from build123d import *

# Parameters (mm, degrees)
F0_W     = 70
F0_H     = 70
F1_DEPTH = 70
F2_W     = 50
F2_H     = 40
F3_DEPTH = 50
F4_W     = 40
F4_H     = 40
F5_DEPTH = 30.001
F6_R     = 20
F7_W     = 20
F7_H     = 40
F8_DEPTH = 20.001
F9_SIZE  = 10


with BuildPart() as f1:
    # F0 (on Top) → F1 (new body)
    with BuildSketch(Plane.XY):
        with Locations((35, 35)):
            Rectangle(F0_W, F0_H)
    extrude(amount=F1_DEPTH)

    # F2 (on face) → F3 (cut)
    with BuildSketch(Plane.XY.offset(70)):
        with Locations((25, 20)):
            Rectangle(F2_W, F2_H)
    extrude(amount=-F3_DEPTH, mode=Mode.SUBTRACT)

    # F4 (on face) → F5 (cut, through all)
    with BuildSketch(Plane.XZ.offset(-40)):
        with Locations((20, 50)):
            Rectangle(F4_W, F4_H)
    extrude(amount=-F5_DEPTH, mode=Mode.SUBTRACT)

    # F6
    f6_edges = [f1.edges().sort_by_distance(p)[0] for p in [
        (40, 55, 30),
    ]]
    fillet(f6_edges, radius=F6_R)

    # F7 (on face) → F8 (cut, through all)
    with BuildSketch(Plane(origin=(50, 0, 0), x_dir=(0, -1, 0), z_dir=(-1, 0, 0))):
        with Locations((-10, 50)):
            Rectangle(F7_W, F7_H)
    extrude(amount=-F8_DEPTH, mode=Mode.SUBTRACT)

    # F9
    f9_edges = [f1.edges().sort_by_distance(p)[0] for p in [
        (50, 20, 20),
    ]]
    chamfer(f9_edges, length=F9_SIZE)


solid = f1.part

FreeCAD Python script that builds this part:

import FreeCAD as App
import Part
import Sketcher
from FreeCAD import Vector
Q = App.Units.Quantity


def edges_at(feature, points):
    """Names of the edges that pass closest to the given points."""
    edges = feature.Shape.Edges
    near = lambda p: min(range(len(edges)), key=lambda i: edges[i].distToShape(Part.Vertex(*p))[0])
    return sorted({f"Edge{near(p) + 1}" for p in points})


def add_polygon(sketch, points):
    """Adds a closed chain of lines whose ends are joined by coincident constraints."""
    first, n = sketch.GeometryCount, len(points)
    for a, b in zip(points, points[1:] + points[:1]):
        sketch.addGeometry(Part.LineSegment(App.Vector(*a, 0), App.Vector(*b, 0)), False)
    for i in range(n):
        sketch.addConstraint(Sketcher.Constraint("Coincident", first + i, 2, first + (i + 1) % n, 1))

doc = App.newDocument("Part")
body = doc.addObject("PartDesign::Body", "Body")

sketch1 = body.newObject("Sketcher::SketchObject", "Sketch")
sketch1.AttachmentSupport = (doc.getObject("XY_Plane"), [""])
sketch1.MapMode = "FlatFace"
add_polygon(sketch1, [(0, 70), (0, 0), (70, 0), (70, 70)])
sketch1.addConstraint(Sketcher.Constraint("Vertical", 0))
sketch1.addConstraint(Sketcher.Constraint("Horizontal", 1))
sketch1.addConstraint(Sketcher.Constraint("Vertical", 2))
sketch1.addConstraint(Sketcher.Constraint("Horizontal", 3))
sketch1.addConstraint(Sketcher.Constraint("Coincident", 0, 2, -1, 1))
sketch1.addConstraint(Sketcher.Constraint("Equal", 3, 0))
sketch1.addConstraint(Sketcher.Constraint("DistanceX", 1, 1, 1, 2, Q("70 mm")))
pad1 = body.newObject("PartDesign::Pad", "Pad")
pad1.Profile = sketch1
pad1.Length = 70

sketch2 = body.newObject("Sketcher::SketchObject", "Sketch001")
sketch2.AttachmentSupport = (doc.getObject("XY_Plane"), [""])
sketch2.MapMode = "FlatFace"
sketch2.AttachmentOffset = App.Placement(Vector(0, 0, 70), App.Rotation())
add_polygon(sketch2, [(0, 40), (0, 0), (50, 0), (50, 40)])
sketch2.addConstraint(Sketcher.Constraint("Vertical", 0))
sketch2.addConstraint(Sketcher.Constraint("Horizontal", 1))
sketch2.addConstraint(Sketcher.Constraint("Vertical", 2))
sketch2.addConstraint(Sketcher.Constraint("Horizontal", 3))
sketch2.addConstraint(Sketcher.Constraint("Coincident", 0, 2, -1, 1))
sketch2.addConstraint(Sketcher.Constraint("DistanceX", 1, 1, 1, 2, Q("50 mm")))
sketch2.addConstraint(Sketcher.Constraint("DistanceY", 0, 2, 0, 1, Q("40 mm")))
pocket1 = body.newObject("PartDesign::Pocket", "Pocket")
pocket1.Profile = sketch2
pocket1.Length = 50

sketch3 = body.newObject("Sketcher::SketchObject", "Sketch002")
sketch3.AttachmentSupport = (doc.getObject("XZ_Plane"), [""])
sketch3.MapMode = "FlatFace"
sketch3.AttachmentOffset = App.Placement(Vector(0, 0, -40), App.Rotation())
add_polygon(sketch3, [(0, 70), (0, 30), (40, 30), (40, 70)])
sketch3.addConstraint(Sketcher.Constraint("Vertical", 0))
sketch3.addConstraint(Sketcher.Constraint("Horizontal", 1))
sketch3.addConstraint(Sketcher.Constraint("Vertical", 2))
sketch3.addConstraint(Sketcher.Constraint("Horizontal", 3))
sketch3.addConstraint(Sketcher.Constraint("PointOnObject", 0, 2, -2))
sketch3.addConstraint(Sketcher.Constraint("Equal", 3, 0))
sketch3.addConstraint(Sketcher.Constraint("DistanceX", 1, 1, 1, 2, Q("40 mm")))
sketch3.addConstraint(Sketcher.Constraint("DistanceY", -1, 1, 0, 2, Q("30 mm")))
pocket2 = body.newObject("PartDesign::Pocket", "Pocket001")
pocket2.Profile = sketch3
pocket2.Type = "ThroughAll"
doc.recompute()

fillet = body.newObject("PartDesign::Fillet", "Fillet")
fillet.Base = (pocket2, edges_at(pocket2, [(40, 55, 30)]))
fillet.Radius = 20

sketch4 = body.newObject("Sketcher::SketchObject", "Sketch003")
sketch4.AttachmentSupport = (doc.getObject("YZ_Plane"), [""])
sketch4.MapMode = "FlatFace"
sketch4.AttachmentOffset = App.Placement(Vector(0, 0, 50), App.Rotation())
add_polygon(sketch4, [(20, 70), (20, 30), (0, 30), (0, 70)])
sketch4.addConstraint(Sketcher.Constraint("Vertical", 0))
sketch4.addConstraint(Sketcher.Constraint("Horizontal", 1))
sketch4.addConstraint(Sketcher.Constraint("Vertical", 2))
sketch4.addConstraint(Sketcher.Constraint("Horizontal", 3))
sketch4.addConstraint(Sketcher.Constraint("PointOnObject", 1, 2, -2))
sketch4.addConstraint(Sketcher.Constraint("DistanceX", 1, 2, 1, 1, Q("20 mm")))
sketch4.addConstraint(Sketcher.Constraint("DistanceY", 0, 2, 0, 1, Q("40 mm")))
sketch4.addConstraint(Sketcher.Constraint("DistanceY", -1, 1, 0, 2, Q("30 mm")))
pocket3 = body.newObject("PartDesign::Pocket", "Pocket002")
pocket3.Profile = sketch4
pocket3.Type = "ThroughAll"
pocket3.Reversed = True
doc.recompute()

chamfer = body.newObject("PartDesign::Chamfer", "Chamfer")
chamfer.Base = (pocket3, edges_at(pocket3, [(50, 20, 20)]))
chamfer.Size = 10

doc.recompute()
